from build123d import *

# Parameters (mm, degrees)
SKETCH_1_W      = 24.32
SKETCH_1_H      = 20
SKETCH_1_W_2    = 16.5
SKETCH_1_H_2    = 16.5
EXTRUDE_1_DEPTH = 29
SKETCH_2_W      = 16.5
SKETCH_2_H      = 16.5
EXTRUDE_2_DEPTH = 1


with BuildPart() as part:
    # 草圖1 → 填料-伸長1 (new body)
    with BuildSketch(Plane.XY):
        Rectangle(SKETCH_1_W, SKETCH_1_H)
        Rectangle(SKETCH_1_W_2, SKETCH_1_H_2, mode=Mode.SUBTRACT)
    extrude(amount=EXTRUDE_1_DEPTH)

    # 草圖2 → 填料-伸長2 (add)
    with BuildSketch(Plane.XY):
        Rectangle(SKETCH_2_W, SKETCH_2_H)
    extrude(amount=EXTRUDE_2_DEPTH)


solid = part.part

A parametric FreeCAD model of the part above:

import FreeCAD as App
import Part
import Sketcher

doc = App.newDocument("Part")
body = doc.addObject("PartDesign::Body", "Body")

# Sketch on XY plane
sketch1 = doc.addObject("Sketcher::SketchObject", "Sketch")
body.addObject(sketch1)
sketch1.AttachmentSupport = (doc.XY_Plane, [""])
sketch1.MapMode = "FlatFace"
sketch1.addGeometry([
    Part.LineSegment(App.Vector(-12, 10, 0), App.Vector(-12, -10, 0)),  # 0
    Part.LineSegment(App.Vector(-12, -10, 0), App.Vector(12, -10, 0)),  # 1
    Part.LineSegment(App.Vector(12, -10, 0), App.Vector(12, 10, 0)),  # 2
    Part.LineSegment(App.Vector(12, 10, 0), App.Vector(-12, 10, 0)),  # 3
    Part.LineSegment(App.Vector(8, -8, 0), App.Vector(-8, -8, 0)),  # 4
    Part.LineSegment(App.Vector(-8, -8, 0), App.Vector(-8, 8, 0)),  # 5
    Part.LineSegment(App.Vector(-8, 8, 0), App.Vector(8, 8, 0)),  # 6
    Part.LineSegment(App.Vector(8, 8, 0), App.Vector(8, -8, 0)),  # 7
], False)
sketch1.addConstraint([
    Sketcher.Constraint("Coincident", 0, 2, 1, 1),
    Sketcher.Constraint("Coincident", 1, 2, 2, 1),
    Sketcher.Constraint("Coincident", 2, 2, 3, 1),
    Sketcher.Constraint("Coincident", 3, 2, 0, 1),
    Sketcher.Constraint("Coincident", 4, 2, 5, 1),
    Sketcher.Constraint("Coincident", 5, 2, 6, 1),
    Sketcher.Constraint("Coincident", 6, 2, 7, 1),
    Sketcher.Constraint("Coincident", 7, 2, 4, 1),
    Sketcher.Constraint("Vertical", 0),
    Sketcher.Constraint("Horizontal", 1),
    Sketcher.Constraint("Vertical", 2),
    Sketcher.Constraint("Horizontal", 3),
    Sketcher.Constraint("Horizontal", 4),
    Sketcher.Constraint("Vertical", 5),
    Sketcher.Constraint("Horizontal", 6),
    Sketcher.Constraint("Vertical", 7),
    Sketcher.Constraint("Symmetric", 0, 2, 2, 2, -1, 1),
    Sketcher.Constraint("Symmetric", 4, 2, 6, 2, -1, 1),
    Sketcher.Constraint("Equal", 6, 5),
    Sketcher.Constraint("DistanceY", 0, 2, 0, 1, 20.0),
    Sketcher.Constraint("DistanceX", 4, 2, 4, 1, 16.5),
    Sketcher.Constraint("DistanceX", 1, 1, 1, 2, 24.32),
])
pad1 = doc.addObject("PartDesign::Pad", "Pad")
body.addObject(pad1)
pad1.Profile = sketch1
pad1.Length = 29

# Sketch on XY plane
sketch2 = doc.addObject("Sketcher::SketchObject", "Sketch001")
body.addObject(sketch2)
sketch2.AttachmentSupport = (doc.XY_Plane, [""])
sketch2.MapMode = "FlatFace"
sketch2.addGeometry([
    Part.LineSegment(App.Vector(-8, 8, 0), App.Vector(-8, -8, 0)),
    Part.LineSegment(App.Vector(-8, -8, 0), App.Vector(8, -8, 0)),
    Part.LineSegment(App.Vector(8, -8, 0), App.Vector(8, 8, 0)),
    Part.LineSegment(App.Vector(8, 8, 0), App.Vector(-8, 8, 0)),
], False)
sketch2.addConstraint([
    Sketcher.Constraint("Coincident", 0, 2, 1, 1),
    Sketcher.Constraint("Coincident", 1, 2, 2, 1),
    Sketcher.Constraint("Coincident", 2, 2, 3, 1),
    Sketcher.Constraint("Coincident", 3, 2, 0, 1),
    Sketcher.Constraint("Vertical", 0),
    Sketcher.Constraint("Horizontal", 1),
    Sketcher.Constraint("Vertical", 2),
    Sketcher.Constraint("Horizontal", 3),
    Sketcher.Constraint("Symmetric", 0, 2, 2, 2, -1, 1),
    Sketcher.Constraint("Equal", 3, 0),
    Sketcher.Constraint("DistanceX", 1, 1, 1, 2, 16.5),
])
pad2 = doc.addObject("PartDesign::Pad", "Pad001")
body.addObject(pad2)
pad2.Profile = sketch2
pad2.Length = 1

doc.recompute()
